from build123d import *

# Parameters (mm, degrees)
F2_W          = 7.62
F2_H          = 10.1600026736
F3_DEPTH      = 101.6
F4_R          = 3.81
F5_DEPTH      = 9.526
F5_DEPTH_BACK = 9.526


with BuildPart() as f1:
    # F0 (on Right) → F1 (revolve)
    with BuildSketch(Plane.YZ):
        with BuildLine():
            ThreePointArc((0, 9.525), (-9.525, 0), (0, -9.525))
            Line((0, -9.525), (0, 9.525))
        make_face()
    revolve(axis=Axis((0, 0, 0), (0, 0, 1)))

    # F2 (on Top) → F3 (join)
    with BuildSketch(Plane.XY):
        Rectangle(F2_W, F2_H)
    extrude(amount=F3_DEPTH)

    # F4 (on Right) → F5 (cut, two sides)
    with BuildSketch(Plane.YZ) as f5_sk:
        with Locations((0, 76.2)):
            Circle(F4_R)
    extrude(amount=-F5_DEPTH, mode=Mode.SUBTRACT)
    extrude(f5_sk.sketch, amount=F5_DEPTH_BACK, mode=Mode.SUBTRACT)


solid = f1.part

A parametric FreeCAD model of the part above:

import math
import FreeCAD as App
import Part
import Sketcher
Q = App.Units.Quantity

doc = App.newDocument("Part")
params = doc.addObject("Spreadsheet::Sheet", "Params")
for row, (alias, value) in enumerate([
    ("sketch1_radius", "0.375 in"),
    ("revolution_angle", "360 deg"),
    ("sketch2_width", "0.3 in"),
    ("sketch2_height", "0.4000001 in"),
    ("pad1_length", "4 in"),
    ("sketch3_diameter", "0.3 in"),
], start=1):
    params.set(f"A{row}", alias)
    params.set(f"B{row}", "=" + value)
    params.setAlias(f"B{row}", alias)

body = doc.addObject("PartDesign::Body", "Body")

sketch1 = body.newObject("Sketcher::SketchObject", "Sketch")
sketch1.AttachmentSupport = (doc.getObject("YZ_Plane"), [""])
sketch1.MapMode = "FlatFace"
sketch1.addGeometry([
    Part.ArcOfCircle(Part.Circle(App.Vector(0, 0, 0), App.Vector(0, 0, 1), 9.525), math.radians(90), math.radians(270)),
    Part.LineSegment(App.Vector(0, -9.525, 0), App.Vector(0, 9.525, 0)),
], False)
sketch1.addConstraint([
    Sketcher.Constraint("Coincident", 0, 1, 1, 2),
    Sketcher.Constraint("Coincident", 1, 1, 0, 2),
    Sketcher.Constraint("Vertical", 1),
    Sketcher.Constraint("Coincident", 0, 3, -1, 1),
    Sketcher.Constraint("PointOnObject", 0, 1, -2),
    Sketcher.Constraint("Radius", 0, Q("0.375 in")),
])
sketch1.setExpression("Constraints[5]", "Params.sketch1_radius")
revolution = body.newObject("PartDesign::Revolution", "Revolution")
revolution.Profile = sketch1
revolution.ReferenceAxis = (sketch1, ["V_Axis"])
revolution.setExpression("Angle", "Params.revolution_angle")

sketch2 = body.newObject("Sketcher::SketchObject", "Sketch001")
sketch2.AttachmentSupport = (doc.getObject("XY_Plane"), [""])
sketch2.MapMode = "FlatFace"
sketch2.addGeometry([
    Part.LineSegment(App.Vector(-3.81, 5.080001, 0), App.Vector(-3.81, -5.080001, 0)),
    Part.LineSegment(App.Vector(-3.81, -5.080001, 0), App.Vector(3.81, -5.080001, 0)),
    Part.LineSegment(App.Vector(3.81, -5.080001, 0), App.Vector(3.81, 5.080001, 0)),
    Part.LineSegment(App.Vector(3.81, 5.080001, 0), App.Vector(-3.81, 5.080001, 0)),
], False)
sketch2.addConstraint([
    Sketcher.Constraint("Coincident", 0, 2, 1, 1),
    Sketcher.Constraint("Coincident", 1, 2, 2, 1),
    Sketcher.Constraint("Coincident", 2, 2, 3, 1),
    Sketcher.Constraint("Coincident", 3, 2, 0, 1),
    Sketcher.Constraint("Vertical", 0),
    Sketcher.Constraint("Horizontal", 1),
    Sketcher.Constraint("Vertical", 2),
    Sketcher.Constraint("Horizontal", 3),
    Sketcher.Constraint("Symmetric", 0, 2, 2, 2, -1, 1),
    Sketcher.Constraint("DistanceX", 1, 1, 1, 2, Q("0.3 in")),
    Sketcher.Constraint("DistanceY", 0, 2, 0, 1, Q("0.4000001 in")),
])
sketch2.setExpression("Constraints[9]", "Params.sketch2_width")
sketch2.setExpression("Constraints[10]", "Params.sketch2_height")
pad1 = body.newObject("PartDesign::Pad", "Pad")
pad1.Profile = sketch2
pad1.setExpression("Length", "Params.pad1_length")

sketch3 = body.newObject("Sketcher::SketchObject", "Sketch002")
sketch3.AttachmentSupport = (doc.getObject("YZ_Plane"), [""])
sketch3.MapMode = "FlatFace"
sketch3.addGeometry(Part.Circle(App.Vector(0, 76.2, 0), App.Vector(0, 0, 1), 3.81), False)
sketch3.addConstraint([
    Sketcher.Constraint("PointOnObject", 0, 3, -2),
    Sketcher.Constraint("Diameter", 0, Q("0.3 in")),
    Sketcher.Constraint("DistanceY", -1, 1, 0, 3, Q("3 in")),
])
sketch3.setExpression("Constraints[1]", "Params.sketch3_diameter")
pocket1 = body.newObject("PartDesign::Pocket", "Pocket")
pocket1.Profile = sketch3
pocket1.Type = "ThroughAll"
pocket1.Midplane = True

doc.recompute()
